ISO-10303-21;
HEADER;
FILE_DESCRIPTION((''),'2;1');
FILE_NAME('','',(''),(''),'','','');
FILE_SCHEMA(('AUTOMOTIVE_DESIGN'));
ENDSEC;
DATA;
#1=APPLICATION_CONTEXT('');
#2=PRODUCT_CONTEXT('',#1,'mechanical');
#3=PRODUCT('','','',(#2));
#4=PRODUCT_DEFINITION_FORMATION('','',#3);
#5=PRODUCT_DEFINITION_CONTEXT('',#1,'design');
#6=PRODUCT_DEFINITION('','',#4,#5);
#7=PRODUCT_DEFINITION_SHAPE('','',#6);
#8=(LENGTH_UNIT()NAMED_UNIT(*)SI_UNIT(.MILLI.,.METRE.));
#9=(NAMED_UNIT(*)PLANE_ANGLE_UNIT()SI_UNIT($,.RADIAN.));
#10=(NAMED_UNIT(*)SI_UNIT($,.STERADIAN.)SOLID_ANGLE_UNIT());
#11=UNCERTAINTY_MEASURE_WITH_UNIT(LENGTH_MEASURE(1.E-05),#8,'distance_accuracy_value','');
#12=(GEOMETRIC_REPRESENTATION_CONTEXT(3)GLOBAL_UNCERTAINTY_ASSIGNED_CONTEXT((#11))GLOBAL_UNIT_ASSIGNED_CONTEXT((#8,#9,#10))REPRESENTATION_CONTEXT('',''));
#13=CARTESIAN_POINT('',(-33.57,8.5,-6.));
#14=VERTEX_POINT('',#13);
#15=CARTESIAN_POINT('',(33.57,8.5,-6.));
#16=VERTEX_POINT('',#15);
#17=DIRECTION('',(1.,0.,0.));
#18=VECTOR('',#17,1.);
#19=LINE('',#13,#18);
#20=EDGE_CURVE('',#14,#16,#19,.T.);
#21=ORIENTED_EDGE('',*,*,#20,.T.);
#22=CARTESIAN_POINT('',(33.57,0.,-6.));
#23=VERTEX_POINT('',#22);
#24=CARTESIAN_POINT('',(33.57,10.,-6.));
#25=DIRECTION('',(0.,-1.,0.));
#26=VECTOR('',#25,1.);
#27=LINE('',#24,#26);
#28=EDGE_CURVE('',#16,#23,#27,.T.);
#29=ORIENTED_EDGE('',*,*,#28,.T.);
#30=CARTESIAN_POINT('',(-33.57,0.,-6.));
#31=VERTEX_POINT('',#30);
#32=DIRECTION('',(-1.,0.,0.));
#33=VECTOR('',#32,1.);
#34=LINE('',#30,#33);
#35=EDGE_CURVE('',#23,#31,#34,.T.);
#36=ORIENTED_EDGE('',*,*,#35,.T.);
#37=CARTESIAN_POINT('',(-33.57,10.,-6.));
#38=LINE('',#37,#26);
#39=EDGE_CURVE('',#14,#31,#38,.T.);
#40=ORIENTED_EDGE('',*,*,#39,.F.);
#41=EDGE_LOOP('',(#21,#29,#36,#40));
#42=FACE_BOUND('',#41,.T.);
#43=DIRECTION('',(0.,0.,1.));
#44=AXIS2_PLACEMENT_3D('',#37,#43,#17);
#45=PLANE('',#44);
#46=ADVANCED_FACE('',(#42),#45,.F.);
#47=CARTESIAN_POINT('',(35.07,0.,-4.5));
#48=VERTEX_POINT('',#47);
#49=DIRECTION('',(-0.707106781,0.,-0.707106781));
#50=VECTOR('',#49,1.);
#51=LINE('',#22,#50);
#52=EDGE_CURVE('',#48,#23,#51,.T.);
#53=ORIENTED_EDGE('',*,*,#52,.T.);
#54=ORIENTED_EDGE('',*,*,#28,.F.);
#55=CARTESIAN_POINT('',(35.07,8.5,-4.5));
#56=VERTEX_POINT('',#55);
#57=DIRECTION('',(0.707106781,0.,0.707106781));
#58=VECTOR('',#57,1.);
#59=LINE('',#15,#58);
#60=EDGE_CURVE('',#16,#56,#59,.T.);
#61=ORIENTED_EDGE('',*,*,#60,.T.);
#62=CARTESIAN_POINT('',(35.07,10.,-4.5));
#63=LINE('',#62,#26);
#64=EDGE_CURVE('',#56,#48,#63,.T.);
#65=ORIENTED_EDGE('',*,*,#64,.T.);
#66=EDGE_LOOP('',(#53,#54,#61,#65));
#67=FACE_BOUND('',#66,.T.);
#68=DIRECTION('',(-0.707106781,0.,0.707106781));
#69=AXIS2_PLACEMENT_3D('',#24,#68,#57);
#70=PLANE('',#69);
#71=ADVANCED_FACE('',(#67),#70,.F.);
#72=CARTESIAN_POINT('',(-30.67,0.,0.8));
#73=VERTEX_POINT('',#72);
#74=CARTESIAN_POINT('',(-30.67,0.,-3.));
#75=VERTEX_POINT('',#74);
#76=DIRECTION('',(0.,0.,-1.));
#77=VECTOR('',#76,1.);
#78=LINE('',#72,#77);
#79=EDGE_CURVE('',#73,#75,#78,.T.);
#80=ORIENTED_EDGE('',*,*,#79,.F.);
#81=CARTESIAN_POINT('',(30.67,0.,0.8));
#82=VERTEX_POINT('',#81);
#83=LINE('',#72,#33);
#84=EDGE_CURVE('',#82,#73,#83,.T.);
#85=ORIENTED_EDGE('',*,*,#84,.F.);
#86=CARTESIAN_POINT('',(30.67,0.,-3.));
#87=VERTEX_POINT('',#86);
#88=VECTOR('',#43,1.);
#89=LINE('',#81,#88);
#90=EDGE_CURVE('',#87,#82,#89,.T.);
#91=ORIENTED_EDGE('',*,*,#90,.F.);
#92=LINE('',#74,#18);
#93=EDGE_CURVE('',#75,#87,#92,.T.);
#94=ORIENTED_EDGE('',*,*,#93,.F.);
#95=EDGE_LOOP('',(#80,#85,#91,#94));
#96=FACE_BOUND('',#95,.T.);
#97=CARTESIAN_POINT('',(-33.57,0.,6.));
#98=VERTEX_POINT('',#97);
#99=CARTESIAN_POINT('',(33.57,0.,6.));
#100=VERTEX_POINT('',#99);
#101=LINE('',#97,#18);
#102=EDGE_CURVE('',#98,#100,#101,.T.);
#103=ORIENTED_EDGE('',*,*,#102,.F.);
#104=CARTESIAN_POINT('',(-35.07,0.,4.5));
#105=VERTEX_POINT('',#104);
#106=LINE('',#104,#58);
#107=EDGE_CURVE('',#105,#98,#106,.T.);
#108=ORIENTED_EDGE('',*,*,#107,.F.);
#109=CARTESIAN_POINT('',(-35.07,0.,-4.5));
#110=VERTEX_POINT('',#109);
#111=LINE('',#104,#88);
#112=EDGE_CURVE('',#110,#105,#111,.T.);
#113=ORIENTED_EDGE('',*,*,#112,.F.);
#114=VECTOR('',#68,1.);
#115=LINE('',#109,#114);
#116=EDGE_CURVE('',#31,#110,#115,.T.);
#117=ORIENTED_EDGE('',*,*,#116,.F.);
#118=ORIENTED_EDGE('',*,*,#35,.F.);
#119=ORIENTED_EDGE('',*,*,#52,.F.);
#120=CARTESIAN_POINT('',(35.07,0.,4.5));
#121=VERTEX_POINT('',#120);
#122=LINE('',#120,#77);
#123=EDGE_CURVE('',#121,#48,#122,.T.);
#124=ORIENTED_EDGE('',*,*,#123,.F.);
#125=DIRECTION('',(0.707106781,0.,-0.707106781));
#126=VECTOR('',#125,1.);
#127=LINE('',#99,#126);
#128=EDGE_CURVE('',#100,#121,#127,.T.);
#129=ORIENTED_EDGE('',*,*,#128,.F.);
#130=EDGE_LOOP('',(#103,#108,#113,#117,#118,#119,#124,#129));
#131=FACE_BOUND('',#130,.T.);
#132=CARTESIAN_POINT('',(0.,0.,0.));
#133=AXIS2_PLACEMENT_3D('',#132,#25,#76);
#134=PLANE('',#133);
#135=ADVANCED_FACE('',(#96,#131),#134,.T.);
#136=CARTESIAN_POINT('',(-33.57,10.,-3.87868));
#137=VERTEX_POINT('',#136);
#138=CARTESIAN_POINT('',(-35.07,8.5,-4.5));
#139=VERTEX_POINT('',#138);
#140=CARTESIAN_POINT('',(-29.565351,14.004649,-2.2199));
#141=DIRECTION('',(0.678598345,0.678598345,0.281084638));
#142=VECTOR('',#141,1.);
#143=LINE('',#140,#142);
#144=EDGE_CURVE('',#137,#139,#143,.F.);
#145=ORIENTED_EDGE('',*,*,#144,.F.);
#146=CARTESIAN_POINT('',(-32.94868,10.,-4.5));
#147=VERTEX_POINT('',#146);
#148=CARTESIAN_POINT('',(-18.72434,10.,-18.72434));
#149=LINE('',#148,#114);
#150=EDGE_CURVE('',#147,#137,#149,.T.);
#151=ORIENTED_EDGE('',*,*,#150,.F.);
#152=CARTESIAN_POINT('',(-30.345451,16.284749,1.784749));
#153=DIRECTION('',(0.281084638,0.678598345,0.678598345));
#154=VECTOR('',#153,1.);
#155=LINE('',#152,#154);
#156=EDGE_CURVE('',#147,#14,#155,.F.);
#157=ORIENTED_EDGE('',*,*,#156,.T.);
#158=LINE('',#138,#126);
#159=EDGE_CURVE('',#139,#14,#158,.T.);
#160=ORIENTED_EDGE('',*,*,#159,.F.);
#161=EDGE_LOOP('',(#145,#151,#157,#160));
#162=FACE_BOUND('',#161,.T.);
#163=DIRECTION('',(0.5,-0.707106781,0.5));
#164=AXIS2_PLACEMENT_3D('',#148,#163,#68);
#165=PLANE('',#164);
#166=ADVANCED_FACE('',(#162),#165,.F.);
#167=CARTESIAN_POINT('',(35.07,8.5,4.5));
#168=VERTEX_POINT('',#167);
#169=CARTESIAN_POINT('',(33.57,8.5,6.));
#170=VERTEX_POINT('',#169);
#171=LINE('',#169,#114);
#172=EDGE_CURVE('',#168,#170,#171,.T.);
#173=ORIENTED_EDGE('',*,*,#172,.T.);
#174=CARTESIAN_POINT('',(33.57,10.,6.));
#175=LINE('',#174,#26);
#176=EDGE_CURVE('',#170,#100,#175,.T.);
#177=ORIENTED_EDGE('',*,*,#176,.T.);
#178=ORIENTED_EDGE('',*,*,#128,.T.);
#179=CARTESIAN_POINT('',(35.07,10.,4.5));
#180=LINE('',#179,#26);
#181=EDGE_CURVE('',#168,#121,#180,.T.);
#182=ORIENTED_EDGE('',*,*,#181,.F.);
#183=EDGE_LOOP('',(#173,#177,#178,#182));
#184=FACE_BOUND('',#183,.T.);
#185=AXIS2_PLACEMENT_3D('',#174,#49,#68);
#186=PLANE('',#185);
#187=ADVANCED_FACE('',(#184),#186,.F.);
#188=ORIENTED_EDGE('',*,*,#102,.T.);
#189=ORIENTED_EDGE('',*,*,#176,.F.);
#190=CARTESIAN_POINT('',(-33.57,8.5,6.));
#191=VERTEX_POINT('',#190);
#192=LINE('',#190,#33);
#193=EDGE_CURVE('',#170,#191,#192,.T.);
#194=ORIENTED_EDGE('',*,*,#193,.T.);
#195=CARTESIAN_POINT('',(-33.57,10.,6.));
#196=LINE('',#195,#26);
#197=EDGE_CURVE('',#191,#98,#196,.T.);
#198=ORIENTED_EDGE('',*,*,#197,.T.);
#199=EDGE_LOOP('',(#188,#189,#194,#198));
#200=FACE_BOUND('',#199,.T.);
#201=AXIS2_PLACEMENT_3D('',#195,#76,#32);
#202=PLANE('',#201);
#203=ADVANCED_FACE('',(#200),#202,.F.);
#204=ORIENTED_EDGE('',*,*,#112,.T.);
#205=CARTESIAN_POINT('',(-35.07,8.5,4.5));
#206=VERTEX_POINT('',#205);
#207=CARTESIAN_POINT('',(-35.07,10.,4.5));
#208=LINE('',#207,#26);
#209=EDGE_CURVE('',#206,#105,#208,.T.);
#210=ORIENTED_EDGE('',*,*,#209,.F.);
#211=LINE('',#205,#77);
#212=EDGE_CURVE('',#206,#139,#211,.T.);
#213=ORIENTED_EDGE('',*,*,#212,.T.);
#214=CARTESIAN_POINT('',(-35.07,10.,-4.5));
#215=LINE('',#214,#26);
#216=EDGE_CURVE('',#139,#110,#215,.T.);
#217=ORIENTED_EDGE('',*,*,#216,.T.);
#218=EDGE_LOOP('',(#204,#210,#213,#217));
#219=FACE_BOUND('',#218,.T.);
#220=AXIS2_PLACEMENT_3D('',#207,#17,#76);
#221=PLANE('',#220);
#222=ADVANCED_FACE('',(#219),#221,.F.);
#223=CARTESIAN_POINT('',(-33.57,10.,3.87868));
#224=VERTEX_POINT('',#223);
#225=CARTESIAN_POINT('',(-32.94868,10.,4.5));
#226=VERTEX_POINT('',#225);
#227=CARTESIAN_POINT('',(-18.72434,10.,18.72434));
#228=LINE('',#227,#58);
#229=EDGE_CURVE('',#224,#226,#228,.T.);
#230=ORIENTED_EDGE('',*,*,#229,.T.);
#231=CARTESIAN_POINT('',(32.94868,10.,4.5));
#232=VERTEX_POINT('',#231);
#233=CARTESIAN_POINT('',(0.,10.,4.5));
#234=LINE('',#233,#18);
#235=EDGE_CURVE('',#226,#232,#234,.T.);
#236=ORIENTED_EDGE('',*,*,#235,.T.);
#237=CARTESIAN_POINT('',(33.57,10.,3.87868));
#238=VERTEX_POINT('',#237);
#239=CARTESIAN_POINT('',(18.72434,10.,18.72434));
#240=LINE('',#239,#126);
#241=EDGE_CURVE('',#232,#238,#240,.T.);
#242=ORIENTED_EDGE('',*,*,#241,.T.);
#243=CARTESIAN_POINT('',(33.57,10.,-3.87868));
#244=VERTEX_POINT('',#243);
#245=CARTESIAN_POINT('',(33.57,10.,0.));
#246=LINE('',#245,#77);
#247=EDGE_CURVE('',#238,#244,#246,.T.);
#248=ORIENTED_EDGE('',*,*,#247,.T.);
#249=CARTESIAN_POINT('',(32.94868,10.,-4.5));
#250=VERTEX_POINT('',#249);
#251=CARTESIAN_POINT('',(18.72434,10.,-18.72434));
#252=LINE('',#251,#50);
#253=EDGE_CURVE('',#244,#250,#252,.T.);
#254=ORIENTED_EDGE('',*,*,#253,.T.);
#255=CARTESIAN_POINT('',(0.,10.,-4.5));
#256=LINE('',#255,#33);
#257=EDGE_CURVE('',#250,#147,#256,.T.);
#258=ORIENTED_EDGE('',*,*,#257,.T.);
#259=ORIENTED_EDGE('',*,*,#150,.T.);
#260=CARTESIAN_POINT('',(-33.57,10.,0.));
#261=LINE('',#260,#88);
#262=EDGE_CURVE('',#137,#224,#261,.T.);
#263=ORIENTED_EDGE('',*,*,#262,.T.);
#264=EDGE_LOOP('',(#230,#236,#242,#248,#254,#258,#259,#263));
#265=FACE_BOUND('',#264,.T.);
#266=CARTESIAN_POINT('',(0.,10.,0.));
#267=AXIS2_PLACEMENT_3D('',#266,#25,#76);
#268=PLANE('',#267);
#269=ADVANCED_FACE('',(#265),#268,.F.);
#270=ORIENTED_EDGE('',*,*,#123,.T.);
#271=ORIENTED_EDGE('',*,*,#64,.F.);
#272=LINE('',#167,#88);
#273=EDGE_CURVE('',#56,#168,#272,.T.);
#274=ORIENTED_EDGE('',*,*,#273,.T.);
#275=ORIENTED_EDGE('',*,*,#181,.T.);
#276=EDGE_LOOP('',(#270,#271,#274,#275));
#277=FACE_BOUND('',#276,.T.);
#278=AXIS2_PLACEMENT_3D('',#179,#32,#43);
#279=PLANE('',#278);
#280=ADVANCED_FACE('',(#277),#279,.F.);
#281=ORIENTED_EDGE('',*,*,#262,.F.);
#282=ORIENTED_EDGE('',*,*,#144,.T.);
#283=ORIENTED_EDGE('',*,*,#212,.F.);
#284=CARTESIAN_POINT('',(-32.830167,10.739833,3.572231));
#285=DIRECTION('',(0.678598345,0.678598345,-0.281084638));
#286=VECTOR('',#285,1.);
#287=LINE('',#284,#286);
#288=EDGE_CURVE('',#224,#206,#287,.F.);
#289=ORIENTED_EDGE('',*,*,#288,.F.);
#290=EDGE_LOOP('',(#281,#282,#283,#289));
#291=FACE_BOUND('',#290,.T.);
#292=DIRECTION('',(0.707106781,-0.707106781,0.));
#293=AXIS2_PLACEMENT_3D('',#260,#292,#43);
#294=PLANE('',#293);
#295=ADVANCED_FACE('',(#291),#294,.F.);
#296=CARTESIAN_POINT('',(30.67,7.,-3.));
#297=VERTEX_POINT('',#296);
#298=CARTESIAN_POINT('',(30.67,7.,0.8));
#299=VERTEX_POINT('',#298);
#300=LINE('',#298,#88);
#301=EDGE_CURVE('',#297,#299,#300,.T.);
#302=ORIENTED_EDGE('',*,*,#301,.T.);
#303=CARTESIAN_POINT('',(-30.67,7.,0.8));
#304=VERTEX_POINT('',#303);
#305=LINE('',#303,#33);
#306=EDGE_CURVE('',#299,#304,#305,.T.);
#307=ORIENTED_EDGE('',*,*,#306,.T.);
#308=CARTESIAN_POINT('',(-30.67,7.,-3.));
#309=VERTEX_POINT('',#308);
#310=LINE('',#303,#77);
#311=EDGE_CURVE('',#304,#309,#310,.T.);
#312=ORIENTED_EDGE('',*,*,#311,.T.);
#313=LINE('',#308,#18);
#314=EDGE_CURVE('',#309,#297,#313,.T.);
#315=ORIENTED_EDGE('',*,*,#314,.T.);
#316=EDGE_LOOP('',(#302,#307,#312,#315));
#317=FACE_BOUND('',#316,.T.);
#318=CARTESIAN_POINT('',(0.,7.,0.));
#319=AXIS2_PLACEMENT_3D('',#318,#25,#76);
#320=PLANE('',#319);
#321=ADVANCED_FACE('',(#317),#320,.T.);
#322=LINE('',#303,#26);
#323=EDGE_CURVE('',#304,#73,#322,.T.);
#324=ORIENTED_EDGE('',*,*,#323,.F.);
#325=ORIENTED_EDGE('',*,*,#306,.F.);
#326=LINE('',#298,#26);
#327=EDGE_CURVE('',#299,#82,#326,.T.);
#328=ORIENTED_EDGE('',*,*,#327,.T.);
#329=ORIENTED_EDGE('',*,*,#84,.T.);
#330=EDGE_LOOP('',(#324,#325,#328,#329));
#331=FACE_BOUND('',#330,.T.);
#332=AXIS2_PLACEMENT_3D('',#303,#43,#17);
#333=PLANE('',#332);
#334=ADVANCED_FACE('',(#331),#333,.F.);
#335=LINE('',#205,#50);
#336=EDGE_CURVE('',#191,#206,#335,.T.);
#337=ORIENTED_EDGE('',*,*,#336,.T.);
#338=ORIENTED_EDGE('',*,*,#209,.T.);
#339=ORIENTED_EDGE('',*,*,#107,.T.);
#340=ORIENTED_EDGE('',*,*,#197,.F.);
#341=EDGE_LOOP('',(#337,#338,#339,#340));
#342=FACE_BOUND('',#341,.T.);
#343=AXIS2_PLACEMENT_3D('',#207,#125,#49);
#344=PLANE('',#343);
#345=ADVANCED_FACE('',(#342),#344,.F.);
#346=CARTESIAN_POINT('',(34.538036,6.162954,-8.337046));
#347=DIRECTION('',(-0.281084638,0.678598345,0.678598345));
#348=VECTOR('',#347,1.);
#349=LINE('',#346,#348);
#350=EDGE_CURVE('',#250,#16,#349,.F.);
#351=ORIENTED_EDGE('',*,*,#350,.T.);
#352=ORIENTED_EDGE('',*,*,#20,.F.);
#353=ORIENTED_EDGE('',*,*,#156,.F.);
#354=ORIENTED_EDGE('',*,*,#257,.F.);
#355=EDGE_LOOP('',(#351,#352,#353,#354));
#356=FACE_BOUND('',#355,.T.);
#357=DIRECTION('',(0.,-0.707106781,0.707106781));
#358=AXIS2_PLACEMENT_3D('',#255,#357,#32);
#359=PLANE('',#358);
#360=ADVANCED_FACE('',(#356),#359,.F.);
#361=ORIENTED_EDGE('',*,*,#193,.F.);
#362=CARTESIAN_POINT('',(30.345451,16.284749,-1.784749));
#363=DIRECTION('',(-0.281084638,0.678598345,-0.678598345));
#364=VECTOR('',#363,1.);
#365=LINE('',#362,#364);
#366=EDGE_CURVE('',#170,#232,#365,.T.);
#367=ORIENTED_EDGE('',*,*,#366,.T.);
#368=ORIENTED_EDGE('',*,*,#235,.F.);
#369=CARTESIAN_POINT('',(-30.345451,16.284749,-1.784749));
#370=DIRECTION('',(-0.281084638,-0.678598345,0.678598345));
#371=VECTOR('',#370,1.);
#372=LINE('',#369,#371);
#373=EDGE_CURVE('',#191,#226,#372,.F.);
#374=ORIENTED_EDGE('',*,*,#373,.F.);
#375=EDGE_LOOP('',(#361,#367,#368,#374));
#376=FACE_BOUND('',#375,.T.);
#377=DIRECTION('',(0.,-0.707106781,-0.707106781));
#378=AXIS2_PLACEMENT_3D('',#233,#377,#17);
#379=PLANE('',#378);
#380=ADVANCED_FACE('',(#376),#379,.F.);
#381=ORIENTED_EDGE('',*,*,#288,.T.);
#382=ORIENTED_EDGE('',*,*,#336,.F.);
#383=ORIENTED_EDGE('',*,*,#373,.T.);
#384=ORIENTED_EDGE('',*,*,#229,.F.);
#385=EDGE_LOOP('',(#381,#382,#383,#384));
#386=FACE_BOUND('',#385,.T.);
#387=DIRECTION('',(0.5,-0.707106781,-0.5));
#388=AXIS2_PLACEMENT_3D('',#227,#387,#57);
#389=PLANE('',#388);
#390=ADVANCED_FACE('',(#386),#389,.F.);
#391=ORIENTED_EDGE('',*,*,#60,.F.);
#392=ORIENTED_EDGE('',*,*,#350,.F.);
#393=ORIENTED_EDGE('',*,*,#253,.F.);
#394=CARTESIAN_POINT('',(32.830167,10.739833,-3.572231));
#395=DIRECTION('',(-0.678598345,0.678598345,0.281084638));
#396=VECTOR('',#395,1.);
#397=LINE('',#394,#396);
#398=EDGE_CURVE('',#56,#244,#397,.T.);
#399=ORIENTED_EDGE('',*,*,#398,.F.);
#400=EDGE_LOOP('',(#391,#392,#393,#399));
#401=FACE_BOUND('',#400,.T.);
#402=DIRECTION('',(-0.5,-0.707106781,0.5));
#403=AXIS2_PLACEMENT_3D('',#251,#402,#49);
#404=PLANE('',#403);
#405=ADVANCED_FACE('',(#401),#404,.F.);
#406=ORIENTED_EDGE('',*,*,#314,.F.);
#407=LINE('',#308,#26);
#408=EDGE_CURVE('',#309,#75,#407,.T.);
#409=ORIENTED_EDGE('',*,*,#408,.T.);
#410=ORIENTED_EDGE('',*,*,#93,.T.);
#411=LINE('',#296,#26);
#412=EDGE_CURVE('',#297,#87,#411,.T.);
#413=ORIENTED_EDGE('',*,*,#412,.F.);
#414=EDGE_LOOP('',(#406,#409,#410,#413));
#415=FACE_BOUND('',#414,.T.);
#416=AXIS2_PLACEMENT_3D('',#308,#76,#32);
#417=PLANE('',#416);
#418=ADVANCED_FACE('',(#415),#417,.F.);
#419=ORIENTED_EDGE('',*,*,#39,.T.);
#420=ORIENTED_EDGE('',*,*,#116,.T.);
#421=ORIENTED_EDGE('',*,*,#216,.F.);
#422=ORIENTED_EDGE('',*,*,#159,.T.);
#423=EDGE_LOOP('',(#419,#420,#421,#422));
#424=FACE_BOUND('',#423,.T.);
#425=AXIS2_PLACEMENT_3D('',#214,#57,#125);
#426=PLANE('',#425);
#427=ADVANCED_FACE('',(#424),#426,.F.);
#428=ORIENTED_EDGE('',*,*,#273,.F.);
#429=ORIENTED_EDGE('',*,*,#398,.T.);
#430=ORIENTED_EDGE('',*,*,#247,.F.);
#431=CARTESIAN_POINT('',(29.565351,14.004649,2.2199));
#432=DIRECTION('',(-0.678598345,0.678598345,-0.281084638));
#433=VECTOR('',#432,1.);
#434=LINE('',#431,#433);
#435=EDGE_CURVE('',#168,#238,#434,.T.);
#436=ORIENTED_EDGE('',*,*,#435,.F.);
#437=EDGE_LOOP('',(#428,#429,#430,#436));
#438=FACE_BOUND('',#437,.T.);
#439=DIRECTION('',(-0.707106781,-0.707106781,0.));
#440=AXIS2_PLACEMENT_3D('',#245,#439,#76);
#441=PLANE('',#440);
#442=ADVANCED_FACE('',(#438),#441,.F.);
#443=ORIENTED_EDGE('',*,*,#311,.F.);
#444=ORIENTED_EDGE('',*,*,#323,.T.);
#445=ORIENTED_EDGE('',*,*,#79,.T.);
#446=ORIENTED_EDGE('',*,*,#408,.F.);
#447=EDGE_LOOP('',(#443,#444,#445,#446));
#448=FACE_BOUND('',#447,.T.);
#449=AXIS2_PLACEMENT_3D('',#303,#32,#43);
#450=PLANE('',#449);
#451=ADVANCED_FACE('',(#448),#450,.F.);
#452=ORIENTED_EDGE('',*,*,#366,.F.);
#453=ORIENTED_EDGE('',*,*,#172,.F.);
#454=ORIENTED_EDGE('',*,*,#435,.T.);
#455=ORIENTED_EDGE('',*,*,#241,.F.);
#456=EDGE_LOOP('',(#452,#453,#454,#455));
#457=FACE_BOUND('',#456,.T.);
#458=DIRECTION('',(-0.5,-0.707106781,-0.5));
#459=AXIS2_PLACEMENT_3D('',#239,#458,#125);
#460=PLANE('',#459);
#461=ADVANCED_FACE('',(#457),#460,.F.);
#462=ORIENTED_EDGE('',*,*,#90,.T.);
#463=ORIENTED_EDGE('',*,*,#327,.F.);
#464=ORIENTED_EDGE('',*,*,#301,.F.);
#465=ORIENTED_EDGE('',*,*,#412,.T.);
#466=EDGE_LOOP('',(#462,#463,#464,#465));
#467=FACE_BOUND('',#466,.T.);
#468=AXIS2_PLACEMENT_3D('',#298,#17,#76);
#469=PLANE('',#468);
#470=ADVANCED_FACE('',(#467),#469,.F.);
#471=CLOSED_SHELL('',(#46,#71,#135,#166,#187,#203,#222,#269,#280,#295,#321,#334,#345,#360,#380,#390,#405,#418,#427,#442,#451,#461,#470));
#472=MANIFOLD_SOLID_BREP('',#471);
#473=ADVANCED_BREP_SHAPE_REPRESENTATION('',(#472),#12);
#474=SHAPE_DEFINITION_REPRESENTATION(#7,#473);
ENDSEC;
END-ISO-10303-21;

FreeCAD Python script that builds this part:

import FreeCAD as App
import Part
import Sketcher
Q = App.Units.Quantity


def edges_at(feature, points):
    """Names of the edges that pass closest to the given points."""
    edges = feature.Shape.Edges
    near = lambda p: min(range(len(edges)), key=lambda i: edges[i].distToShape(Part.Vertex(*p))[0])
    return sorted({f"Edge{near(p) + 1}" for p in points})


def add_polygon(sketch, points):
    """Adds a closed chain of lines whose ends are joined by coincident constraints."""
    first, n = sketch.GeometryCount, len(points)
    for a, b in zip(points, points[1:] + points[:1]):
        sketch.addGeometry(Part.LineSegment(App.Vector(*a, 0), App.Vector(*b, 0)), False)
    for i in range(n):
        sketch.addConstraint(Sketcher.Constraint("Coincident", first + i, 2, first + (i + 1) % n, 1))

doc = App.newDocument("Part")
body = doc.addObject("PartDesign::Body", "Body")

sketch1 = doc.addObject("Sketcher::SketchObject", "Sketch")
body.addObject(sketch1)
sketch1.AttachmentSupport = (doc.XZ_Plane, [""])
sketch1.MapMode = "FlatFace"
add_polygon(sketch1, [(-33.57, -6), (-35.07, -4.5), (-35.07, 4.5), (-33.57, 6), (33.57, 6), (35.07, 4.5), (35.07, -4.5), (33.57, -6)])
sketch1.addConstraint([
    Sketcher.Constraint("Vertical", 1),
    Sketcher.Constraint("Horizontal", 3),
    Sketcher.Constraint("Vertical", 5),
    Sketcher.Constraint("Horizontal", 7),
    Sketcher.Constraint("Symmetric", 0, 2, 4, 2, -1, 1),
    Sketcher.Constraint("Symmetric", 2, 2, 6, 2, -1, 1),
    Sketcher.Constraint("Perpendicular", 0, 2),
    Sketcher.Constraint("Perpendicular", 2, 4),
    Sketcher.Constraint("Perpendicular", 4, 6),
    Sketcher.Constraint("Horizontal", 1, 2, 4, 2),
    Sketcher.Constraint("Vertical", 3, 2, 6, 2),
    Sketcher.Constraint("DistanceY", 1, 1, 1, 2, Q("9 mm")),
    Sketcher.Constraint("DistanceY", -1, 1, 2, 2, Q("6 mm")),
    Sketcher.Constraint("DistanceX", 3, 1, 3, 2, Q("67.14 mm")),
])
pad1 = doc.addObject("PartDesign::Pad", "Pad")
body.addObject(pad1)
pad1.Profile = sketch1
pad1.Length = 10
pad1.Reversed = True
doc.recompute()

chamfer = doc.addObject("PartDesign::Chamfer", "Chamfer")
body.addObject(chamfer)
chamfer.Base = (pad1, edges_at(pad1, [
    (0, 10, 6),
    (34.32, 10, 5.25),
    (35.07, 10, 0),
    (34.32, 10, -5.25),
    (0, 10, -6),
    (-34.32, 10, -5.25),
    (-35.07, 10, 0),
    (-34.32, 10, 5.25),
]))
chamfer.Size = 1.5

sketch2 = doc.addObject("Sketcher::SketchObject", "Sketch001")
body.addObject(sketch2)
sketch2.AttachmentSupport = (doc.XZ_Plane, [""])
sketch2.MapMode = "FlatFace"
add_polygon(sketch2, [(-30.67, 0.8), (-30.67, -3), (30.67, -3), (30.67, 0.8)])
sketch2.addConstraint([
    Sketcher.Constraint("Vertical", 0),
    Sketcher.Constraint("Horizontal", 1),
    Sketcher.Constraint("Vertical", 2),
    Sketcher.Constraint("Horizontal", 3),
    Sketcher.Constraint("DistanceY", 0, 2, 0, 1, Q("3.8 mm")),
    Sketcher.Constraint("DistanceY", 0, 2, -1, 1, Q("3 mm")),
    Sketcher.Constraint("DistanceX", 1, 1, 1, 2, Q("61.34 mm")),
    Sketcher.Constraint("DistanceX", 0, 2, -1, 1, Q("30.67 mm")),
])
pocket1 = doc.addObject("PartDesign::Pocket", "Pocket")
body.addObject(pocket1)
pocket1.Profile = sketch2
pocket1.Length = 7

doc.recompute()
